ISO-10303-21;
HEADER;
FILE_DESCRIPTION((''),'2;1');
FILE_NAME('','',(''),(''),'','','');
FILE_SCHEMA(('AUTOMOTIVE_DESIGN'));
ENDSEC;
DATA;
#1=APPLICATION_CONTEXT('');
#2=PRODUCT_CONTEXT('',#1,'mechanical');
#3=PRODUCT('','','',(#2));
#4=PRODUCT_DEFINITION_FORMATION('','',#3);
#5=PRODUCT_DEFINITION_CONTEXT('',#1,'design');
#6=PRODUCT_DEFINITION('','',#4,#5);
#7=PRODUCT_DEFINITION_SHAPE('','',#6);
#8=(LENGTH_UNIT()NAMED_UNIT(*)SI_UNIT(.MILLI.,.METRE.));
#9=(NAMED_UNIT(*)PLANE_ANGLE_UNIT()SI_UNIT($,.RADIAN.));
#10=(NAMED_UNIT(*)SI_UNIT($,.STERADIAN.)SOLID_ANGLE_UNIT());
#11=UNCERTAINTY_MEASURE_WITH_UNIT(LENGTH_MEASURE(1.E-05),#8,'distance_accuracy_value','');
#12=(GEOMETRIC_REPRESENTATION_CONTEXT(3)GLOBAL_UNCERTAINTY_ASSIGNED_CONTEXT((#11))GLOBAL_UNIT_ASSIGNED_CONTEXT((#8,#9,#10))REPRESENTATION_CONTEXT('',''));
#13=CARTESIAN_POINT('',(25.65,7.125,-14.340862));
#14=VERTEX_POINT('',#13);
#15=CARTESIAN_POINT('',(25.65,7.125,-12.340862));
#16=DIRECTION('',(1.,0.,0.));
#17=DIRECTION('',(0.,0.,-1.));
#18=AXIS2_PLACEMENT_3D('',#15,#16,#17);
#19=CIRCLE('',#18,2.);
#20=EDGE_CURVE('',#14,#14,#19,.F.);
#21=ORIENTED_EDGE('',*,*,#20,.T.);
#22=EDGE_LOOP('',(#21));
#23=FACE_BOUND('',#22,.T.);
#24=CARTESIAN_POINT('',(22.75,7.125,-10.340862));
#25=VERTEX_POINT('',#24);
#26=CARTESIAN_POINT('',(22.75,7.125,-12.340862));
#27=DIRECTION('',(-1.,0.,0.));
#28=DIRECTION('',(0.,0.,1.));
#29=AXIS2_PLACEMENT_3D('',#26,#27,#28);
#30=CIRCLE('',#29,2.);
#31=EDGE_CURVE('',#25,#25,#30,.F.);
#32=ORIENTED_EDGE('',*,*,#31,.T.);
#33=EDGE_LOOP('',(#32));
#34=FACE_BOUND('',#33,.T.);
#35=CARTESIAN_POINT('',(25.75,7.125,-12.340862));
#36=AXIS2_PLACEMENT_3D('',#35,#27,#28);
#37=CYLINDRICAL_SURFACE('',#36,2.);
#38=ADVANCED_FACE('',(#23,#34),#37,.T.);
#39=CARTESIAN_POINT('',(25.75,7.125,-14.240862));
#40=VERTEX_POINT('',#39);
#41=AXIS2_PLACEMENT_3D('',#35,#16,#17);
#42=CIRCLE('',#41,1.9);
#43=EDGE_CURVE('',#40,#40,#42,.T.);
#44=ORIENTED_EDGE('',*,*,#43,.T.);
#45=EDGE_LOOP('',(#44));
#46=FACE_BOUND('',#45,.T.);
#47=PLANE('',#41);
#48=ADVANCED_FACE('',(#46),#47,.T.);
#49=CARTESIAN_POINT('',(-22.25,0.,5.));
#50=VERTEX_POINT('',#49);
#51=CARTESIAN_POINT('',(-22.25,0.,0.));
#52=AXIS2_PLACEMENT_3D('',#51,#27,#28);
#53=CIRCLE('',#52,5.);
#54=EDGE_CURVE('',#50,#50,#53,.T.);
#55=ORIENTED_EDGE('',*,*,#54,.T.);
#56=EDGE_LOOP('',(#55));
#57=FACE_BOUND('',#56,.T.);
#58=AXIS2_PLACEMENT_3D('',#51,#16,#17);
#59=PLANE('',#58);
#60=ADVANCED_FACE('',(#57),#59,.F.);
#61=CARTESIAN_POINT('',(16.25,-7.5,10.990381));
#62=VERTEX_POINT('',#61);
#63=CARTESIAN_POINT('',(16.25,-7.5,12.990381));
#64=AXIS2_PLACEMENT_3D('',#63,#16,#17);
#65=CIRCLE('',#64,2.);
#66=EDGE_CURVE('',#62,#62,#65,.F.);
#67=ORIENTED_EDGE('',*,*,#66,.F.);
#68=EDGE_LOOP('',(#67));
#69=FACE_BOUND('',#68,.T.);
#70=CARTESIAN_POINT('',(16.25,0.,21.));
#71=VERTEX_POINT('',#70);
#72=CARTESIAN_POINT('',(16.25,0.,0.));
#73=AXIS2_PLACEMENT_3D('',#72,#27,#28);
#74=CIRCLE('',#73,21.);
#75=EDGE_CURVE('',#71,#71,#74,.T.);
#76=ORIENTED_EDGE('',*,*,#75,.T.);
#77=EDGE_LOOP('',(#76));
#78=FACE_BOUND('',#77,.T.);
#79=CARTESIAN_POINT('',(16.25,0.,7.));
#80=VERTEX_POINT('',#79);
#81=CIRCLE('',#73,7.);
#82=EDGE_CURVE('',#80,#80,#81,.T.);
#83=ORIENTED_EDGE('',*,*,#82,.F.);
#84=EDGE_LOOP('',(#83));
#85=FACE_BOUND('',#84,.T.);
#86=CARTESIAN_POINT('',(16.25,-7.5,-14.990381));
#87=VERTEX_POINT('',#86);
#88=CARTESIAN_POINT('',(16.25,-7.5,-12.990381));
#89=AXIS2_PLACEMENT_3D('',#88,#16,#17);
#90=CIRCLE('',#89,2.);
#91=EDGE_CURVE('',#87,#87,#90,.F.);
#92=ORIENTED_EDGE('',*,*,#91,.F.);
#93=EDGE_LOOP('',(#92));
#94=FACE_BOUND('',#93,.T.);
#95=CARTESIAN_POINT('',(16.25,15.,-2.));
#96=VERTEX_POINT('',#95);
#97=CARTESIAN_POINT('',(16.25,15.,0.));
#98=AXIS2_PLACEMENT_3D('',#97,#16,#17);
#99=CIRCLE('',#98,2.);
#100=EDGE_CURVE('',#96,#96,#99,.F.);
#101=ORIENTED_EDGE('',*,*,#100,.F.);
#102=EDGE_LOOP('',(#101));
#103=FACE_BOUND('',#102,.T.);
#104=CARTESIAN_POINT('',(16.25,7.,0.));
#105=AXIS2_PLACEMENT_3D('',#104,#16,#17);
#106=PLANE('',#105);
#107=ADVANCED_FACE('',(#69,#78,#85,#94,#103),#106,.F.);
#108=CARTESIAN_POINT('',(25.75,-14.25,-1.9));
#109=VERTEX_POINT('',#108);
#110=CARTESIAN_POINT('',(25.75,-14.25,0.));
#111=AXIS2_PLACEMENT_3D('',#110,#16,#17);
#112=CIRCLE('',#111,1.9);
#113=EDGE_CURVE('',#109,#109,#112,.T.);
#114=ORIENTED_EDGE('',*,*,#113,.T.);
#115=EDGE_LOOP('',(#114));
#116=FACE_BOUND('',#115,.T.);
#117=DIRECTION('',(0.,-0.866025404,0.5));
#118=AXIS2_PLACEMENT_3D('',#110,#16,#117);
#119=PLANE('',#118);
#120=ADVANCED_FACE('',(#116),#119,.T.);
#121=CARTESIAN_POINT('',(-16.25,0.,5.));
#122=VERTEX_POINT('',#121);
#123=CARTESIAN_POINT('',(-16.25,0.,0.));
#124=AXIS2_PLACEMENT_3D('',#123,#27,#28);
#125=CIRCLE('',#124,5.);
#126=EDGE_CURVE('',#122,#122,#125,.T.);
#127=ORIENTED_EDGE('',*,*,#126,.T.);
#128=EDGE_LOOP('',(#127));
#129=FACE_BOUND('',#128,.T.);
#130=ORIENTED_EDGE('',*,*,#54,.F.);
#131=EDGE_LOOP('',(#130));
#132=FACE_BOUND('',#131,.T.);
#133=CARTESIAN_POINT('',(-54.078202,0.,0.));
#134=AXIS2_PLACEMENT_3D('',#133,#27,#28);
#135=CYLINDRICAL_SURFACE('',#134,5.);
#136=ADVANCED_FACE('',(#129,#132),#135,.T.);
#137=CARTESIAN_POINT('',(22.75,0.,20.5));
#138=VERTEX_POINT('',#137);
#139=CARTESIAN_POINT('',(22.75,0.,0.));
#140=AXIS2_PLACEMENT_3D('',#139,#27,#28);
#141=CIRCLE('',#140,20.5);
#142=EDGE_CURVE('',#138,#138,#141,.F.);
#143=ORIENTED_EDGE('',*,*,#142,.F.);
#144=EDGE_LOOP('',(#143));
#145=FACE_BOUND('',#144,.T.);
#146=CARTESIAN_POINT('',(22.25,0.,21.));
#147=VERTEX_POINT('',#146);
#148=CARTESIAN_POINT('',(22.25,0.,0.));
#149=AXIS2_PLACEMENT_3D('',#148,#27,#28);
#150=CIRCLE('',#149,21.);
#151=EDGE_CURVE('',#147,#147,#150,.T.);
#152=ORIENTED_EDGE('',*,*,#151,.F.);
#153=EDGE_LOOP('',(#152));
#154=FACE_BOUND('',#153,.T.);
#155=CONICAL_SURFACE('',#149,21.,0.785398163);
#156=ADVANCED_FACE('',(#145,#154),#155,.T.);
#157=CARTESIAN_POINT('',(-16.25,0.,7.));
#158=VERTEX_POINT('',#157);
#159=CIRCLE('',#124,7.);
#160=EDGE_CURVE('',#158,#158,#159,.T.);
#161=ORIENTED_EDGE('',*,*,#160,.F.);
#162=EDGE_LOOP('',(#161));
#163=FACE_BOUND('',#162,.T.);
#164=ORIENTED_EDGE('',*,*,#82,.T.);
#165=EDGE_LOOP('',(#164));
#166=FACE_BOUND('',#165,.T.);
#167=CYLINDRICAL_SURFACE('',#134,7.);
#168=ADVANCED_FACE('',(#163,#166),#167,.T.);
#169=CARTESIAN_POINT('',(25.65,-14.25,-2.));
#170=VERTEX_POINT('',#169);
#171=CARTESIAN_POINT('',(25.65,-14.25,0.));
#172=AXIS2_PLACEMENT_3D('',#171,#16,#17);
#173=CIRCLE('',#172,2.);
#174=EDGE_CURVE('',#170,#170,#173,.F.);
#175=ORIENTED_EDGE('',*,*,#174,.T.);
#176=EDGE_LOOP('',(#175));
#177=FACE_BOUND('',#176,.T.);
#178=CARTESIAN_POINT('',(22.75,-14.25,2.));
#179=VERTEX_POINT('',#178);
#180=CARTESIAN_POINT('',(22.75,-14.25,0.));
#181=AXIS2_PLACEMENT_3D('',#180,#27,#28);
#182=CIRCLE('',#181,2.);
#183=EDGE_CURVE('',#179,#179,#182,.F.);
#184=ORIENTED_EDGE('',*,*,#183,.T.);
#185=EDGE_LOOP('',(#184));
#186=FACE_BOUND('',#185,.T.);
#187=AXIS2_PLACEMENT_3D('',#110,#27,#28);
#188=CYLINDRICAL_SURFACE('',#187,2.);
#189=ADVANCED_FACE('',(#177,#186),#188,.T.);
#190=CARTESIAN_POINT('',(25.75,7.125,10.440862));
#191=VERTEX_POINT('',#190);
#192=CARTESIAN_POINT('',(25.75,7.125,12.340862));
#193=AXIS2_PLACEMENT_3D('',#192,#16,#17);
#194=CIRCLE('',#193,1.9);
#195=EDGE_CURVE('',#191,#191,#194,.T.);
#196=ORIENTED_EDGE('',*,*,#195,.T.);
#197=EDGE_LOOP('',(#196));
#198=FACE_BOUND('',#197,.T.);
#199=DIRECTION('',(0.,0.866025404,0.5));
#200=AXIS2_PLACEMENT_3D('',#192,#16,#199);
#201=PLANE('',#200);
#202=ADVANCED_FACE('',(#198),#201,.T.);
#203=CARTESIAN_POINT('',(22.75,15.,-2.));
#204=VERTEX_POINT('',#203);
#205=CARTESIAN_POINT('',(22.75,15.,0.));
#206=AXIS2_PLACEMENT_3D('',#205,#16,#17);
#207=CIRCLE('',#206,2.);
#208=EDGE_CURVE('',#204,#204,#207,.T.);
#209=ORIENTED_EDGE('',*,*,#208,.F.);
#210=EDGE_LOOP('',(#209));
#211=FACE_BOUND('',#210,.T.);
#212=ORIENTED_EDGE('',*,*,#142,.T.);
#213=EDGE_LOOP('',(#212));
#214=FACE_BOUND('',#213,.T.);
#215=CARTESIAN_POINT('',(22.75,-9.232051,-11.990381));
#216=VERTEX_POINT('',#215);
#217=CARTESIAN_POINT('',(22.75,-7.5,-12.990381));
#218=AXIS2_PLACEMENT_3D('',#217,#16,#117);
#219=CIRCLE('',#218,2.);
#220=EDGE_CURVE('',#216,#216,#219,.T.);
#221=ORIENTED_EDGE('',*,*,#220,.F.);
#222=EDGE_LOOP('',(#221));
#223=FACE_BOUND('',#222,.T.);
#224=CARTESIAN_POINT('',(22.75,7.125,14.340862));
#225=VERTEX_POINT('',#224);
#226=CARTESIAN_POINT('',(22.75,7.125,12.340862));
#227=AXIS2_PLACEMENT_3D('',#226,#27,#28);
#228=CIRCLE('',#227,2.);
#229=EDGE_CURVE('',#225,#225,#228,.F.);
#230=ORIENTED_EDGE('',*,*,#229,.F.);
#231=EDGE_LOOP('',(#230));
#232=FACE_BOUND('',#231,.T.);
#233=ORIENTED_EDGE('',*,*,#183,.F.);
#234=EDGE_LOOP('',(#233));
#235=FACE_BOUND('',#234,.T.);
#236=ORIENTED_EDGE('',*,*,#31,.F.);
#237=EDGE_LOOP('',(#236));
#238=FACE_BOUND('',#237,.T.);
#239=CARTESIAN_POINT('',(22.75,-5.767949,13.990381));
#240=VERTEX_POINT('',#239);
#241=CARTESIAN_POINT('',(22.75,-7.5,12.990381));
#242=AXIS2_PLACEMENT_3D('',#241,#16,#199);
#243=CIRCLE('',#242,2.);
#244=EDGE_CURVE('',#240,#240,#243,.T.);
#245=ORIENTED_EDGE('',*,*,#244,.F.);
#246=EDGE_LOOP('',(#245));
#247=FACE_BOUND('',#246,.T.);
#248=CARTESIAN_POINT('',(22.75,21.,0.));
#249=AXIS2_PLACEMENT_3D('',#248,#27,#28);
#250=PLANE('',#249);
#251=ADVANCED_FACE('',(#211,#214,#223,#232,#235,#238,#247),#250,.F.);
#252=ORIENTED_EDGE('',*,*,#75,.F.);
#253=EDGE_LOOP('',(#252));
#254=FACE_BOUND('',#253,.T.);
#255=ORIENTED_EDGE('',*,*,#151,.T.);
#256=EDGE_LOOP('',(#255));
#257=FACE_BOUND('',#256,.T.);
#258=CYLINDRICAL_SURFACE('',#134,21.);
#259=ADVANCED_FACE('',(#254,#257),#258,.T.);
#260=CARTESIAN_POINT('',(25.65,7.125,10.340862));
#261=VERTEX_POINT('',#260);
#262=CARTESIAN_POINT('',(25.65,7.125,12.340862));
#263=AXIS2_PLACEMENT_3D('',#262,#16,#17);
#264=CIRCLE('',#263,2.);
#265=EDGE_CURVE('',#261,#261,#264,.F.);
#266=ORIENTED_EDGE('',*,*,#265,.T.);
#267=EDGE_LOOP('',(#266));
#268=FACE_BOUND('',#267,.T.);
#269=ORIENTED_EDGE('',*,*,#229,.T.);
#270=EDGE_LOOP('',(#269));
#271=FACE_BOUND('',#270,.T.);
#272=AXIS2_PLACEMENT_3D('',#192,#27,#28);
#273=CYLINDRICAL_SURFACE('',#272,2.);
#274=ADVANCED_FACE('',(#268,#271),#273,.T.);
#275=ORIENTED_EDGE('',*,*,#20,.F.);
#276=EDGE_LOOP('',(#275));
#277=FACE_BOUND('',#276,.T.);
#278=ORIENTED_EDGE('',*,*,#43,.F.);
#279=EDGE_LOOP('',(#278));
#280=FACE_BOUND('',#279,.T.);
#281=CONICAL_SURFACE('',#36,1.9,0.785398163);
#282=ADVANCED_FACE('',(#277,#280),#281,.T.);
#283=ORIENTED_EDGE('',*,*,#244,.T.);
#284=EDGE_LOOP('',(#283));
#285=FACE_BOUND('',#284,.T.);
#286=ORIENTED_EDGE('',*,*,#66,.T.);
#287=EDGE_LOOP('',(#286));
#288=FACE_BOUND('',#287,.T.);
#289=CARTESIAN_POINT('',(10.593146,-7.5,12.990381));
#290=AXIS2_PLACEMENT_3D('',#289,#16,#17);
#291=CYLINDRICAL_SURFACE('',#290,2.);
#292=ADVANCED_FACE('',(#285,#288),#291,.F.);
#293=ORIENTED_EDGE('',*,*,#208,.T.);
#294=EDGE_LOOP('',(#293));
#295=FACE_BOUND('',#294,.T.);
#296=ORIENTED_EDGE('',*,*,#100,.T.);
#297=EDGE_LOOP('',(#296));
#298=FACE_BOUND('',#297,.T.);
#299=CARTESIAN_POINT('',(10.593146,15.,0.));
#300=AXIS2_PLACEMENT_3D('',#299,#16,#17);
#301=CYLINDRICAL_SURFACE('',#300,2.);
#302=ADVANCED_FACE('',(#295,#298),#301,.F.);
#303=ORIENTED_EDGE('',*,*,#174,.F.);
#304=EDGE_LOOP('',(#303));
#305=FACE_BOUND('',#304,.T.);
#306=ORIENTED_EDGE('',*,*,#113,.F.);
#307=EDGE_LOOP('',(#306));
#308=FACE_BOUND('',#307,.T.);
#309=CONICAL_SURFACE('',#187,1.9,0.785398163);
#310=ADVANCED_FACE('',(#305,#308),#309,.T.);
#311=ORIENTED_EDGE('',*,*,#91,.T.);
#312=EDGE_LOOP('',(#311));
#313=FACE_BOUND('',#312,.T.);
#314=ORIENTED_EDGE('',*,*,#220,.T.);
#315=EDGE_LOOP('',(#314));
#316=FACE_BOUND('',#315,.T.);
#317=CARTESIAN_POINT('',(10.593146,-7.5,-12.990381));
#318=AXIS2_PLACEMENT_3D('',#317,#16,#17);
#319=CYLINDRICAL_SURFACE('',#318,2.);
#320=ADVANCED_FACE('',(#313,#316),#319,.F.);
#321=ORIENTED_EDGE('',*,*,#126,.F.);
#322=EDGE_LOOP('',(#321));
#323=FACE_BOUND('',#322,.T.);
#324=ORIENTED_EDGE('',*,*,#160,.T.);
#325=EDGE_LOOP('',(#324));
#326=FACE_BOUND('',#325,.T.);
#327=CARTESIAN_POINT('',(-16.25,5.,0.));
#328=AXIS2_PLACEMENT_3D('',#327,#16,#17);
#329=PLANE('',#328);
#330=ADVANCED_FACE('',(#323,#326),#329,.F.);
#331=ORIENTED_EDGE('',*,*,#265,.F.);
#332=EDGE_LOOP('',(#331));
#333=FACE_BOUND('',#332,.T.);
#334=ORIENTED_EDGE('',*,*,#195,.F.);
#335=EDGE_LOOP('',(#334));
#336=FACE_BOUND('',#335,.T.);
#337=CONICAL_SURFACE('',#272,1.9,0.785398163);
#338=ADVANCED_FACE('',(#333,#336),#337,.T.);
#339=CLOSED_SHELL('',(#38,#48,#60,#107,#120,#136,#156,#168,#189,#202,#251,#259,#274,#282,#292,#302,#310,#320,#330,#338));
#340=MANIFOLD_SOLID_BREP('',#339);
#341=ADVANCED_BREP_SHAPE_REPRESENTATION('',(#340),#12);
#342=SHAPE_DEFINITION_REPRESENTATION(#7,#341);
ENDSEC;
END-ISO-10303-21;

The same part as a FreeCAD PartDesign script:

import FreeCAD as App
import Part
import Sketcher

V = App.Vector


def edges_at(feature, points):
    """Names of the edges that pass closest to the given points."""
    edges = feature.Shape.Edges
    near = lambda p: min(range(len(edges)), key=lambda i: edges[i].distToShape(Part.Vertex(*p))[0])
    return sorted({f"Edge{near(p) + 1}" for p in points})


def add_polygon(sketch, points):
    """Adds a closed chain of lines whose ends are joined by coincident constraints."""
    first, n = sketch.GeometryCount, len(points)
    for a, b in zip(points, points[1:] + points[:1]):
        sketch.addGeometry(Part.LineSegment(App.Vector(*a, 0), App.Vector(*b, 0)), False)
    for i in range(n):
        sketch.addConstraint(Sketcher.Constraint("Coincident", first + i, 2, first + (i + 1) % n, 1))

doc = App.newDocument("Part")
body = doc.addObject("PartDesign::Body", "Body")

# Sketch on XY plane
sketch1 = body.newObject("Sketcher::SketchObject", "Sketch")
sketch1.AttachmentSupport = (doc.getObject("XY_Plane"), [""])
sketch1.MapMode = "FlatFace"
add_polygon(sketch1, [(-22.25, 5), (-22.25, 0), (22.75, 0), (22.75, 21), (16.25, 21), (16.25, 7), (-16.25, 7), (-16.25, 5)])  # lines 0-7
sketch1.addConstraint(Sketcher.Constraint("Vertical", 0))
sketch1.addConstraint(Sketcher.Constraint("Horizontal", 1))
sketch1.addConstraint(Sketcher.Constraint("Vertical", 2))
sketch1.addConstraint(Sketcher.Constraint("Horizontal", 3))
sketch1.addConstraint(Sketcher.Constraint("Vertical", 4))
sketch1.addConstraint(Sketcher.Constraint("Horizontal", 5))
sketch1.addConstraint(Sketcher.Constraint("Vertical", 6))
sketch1.addConstraint(Sketcher.Constraint("Horizontal", 7))
sketch1.addConstraint(Sketcher.Constraint("PointOnObject", 0, 2, -1))
sketch1.addConstraint(Sketcher.Constraint("DistanceX", 1, 1, 1, 2, 45.0))
sketch1.addConstraint(Sketcher.Constraint("DistanceX", 7, 2, 7, 1, 6.0))
sketch1.addConstraint(Sketcher.Constraint("DistanceY", 0, 2, 0, 1, 5.0))
sketch1.addConstraint(Sketcher.Constraint("DistanceY", 2, 1, 2, 2, 21.0))
sketch1.addConstraint(Sketcher.Constraint("DistanceY", 4, 2, 4, 1, 14.0))
sketch1.addConstraint(Sketcher.Constraint("DistanceX", 3, 2, 3, 1, 6.5))
sketch1.addConstraint(Sketcher.Constraint("DistanceX", 0, 2, -1, 1, 22.25))
revolution = body.newObject("PartDesign::Revolution", "Revolution")
revolution.Profile = sketch1
revolution.ReferenceAxis = (sketch1, ["H_Axis"])
revolution.Angle = 360
doc.recompute()

chamfer = body.newObject("PartDesign::Chamfer", "Chamfer")
chamfer.Base = (revolution, edges_at(revolution, [(22.75, 0, -21)]))
chamfer.Size = 0.5

# Sketch on YZ plane
sketch2 = body.newObject("Sketcher::SketchObject", "Sketch001")
sketch2.AttachmentSupport = (doc.getObject("YZ_Plane"), [""])
sketch2.MapMode = "FlatFace"
sketch2.AttachmentOffset = App.Placement(V(0, 0, 22.75), App.Rotation())
sketch2.addGeometry(Part.Circle(V(15, 0, 0), V(0, 0, 1), 2), False)
sketch2.addConstraint(Sketcher.Constraint("PointOnObject", 0, 3, -1))
sketch2.addConstraint(Sketcher.Constraint("Diameter", 0, 4.0))
sketch2.addConstraint(Sketcher.Constraint("DistanceX", -1, 1, 0, 3, 15.0))
pocket1 = body.newObject("PartDesign::Pocket", "Pocket")
pocket1.Profile = sketch2
pocket1.Length = 6.5
doc.recompute()

polarpattern = body.newObject("PartDesign::PolarPattern", "PolarPattern")
polarpattern.Originals = [pocket1]
polarpattern.Axis = (doc.getObject("X_Axis"), [""])
polarpattern.Angle = 360
polarpattern.Occurrences = 3
body.Tip = polarpattern

# Sketch on YZ plane
sketch3 = body.newObject("Sketcher::SketchObject", "Sketch002")
sketch3.AttachmentSupport = (doc.getObject("YZ_Plane"), [""])
sketch3.MapMode = "FlatFace"
sketch3.AttachmentOffset = App.Placement(V(0, 0, 22.75), App.Rotation())
sketch3.addGeometry(Part.Circle(V(7.125, -12.340862, 0), V(0, 0, 1), 2), False)
sketch3.addConstraint(Sketcher.Constraint("Diameter", 0, 4.0))
sketch3.addConstraint(Sketcher.Constraint("DistanceX", -1, 1, 0, 3, 7.125))
sketch3.addConstraint(Sketcher.Constraint("DistanceY", 0, 3, -1, 1, 12.340862))
pad1 = body.newObject("PartDesign::Pad", "Pad")
pad1.Profile = sketch3
pad1.Length = 3
doc.recompute()

chamfer2 = body.newObject("PartDesign::Chamfer", "Chamfer001")
chamfer2.Base = (pad1, edges_at(pad1, [(25.75, 7.125, -14.341)]))
chamfer2.Size = 0.1
doc.recompute()

polarpattern2 = body.newObject("PartDesign::PolarPattern", "PolarPattern001")
polarpattern2.Originals = [pad1]
polarpattern2.Axis = (doc.getObject("X_Axis"), [""])
polarpattern2.Angle = 360
polarpattern2.Occurrences = 3
body.Tip = polarpattern2
doc.recompute()

chamfer3 = body.newObject("PartDesign::Chamfer", "Chamfer002")
chamfer3.Base = (polarpattern2, edges_at(polarpattern2, [(25.75, 8.857, 13.341), (25.75, -15.982, 1)]))
chamfer3.Size = 0.1

doc.recompute()
